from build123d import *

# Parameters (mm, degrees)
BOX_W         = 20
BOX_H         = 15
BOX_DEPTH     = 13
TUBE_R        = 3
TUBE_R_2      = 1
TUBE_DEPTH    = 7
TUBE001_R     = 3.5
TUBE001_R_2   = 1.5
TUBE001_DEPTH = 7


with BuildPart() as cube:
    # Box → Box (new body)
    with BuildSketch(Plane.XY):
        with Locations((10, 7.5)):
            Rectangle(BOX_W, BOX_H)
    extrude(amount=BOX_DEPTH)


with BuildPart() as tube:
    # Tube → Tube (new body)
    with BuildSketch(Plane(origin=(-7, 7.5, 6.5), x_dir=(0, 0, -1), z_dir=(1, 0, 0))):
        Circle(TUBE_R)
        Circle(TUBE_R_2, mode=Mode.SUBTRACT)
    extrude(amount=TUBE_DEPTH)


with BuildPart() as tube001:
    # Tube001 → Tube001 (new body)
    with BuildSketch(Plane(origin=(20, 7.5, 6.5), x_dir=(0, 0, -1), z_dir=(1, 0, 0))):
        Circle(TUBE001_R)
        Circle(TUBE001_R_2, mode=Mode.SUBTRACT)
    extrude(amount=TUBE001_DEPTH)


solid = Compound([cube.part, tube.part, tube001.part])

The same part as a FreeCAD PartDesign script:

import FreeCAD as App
import Part
import Sketcher
from FreeCAD import Vector

doc = App.newDocument("Part")
params = doc.addObject("Spreadsheet::Sheet", "Params")
for row, (alias, value) in enumerate([
    ("sketch1_width", "20 mm"),
    ("sketch1_height", "15 mm"),
    ("pad1_length", "13 mm"),
    ("sketch2_diameter", "6 mm"),
    ("sketch2_diameter2", "2 mm"),
    ("pad2_length", "7 mm"),
    ("sketch3_diameter", "7 mm"),
    ("sketch3_diameter2", "3 mm"),
    ("pad3_length", "7 mm"),
], start=1):
    params.set(f"A{row}", alias)
    params.set(f"B{row}", "=" + value)
    params.setAlias(f"B{row}", alias)

body = doc.addObject("PartDesign::Body", "Body")

# Sketch on XY plane
sketch1 = body.newObject("Sketcher::SketchObject", "Sketch")
sketch1.AttachmentSupport = (doc.getObject("XY_Plane"), [""])
sketch1.MapMode = "FlatFace"
sketch1.addGeometry(Part.LineSegment(Vector(0, 15, 0), Vector(0, 0, 0)), False)
sketch1.addGeometry(Part.LineSegment(Vector(0, 0, 0), Vector(20, 0, 0)), False)
sketch1.addGeometry(Part.LineSegment(Vector(20, 0, 0), Vector(20, 15, 0)), False)
sketch1.addGeometry(Part.LineSegment(Vector(20, 15, 0), Vector(0, 15, 0)), False)
sketch1.addConstraint(Sketcher.Constraint("Coincident", 0, 2, 1, 1))
sketch1.addConstraint(Sketcher.Constraint("Coincident", 1, 2, 2, 1))
sketch1.addConstraint(Sketcher.Constraint("Coincident", 2, 2, 3, 1))
sketch1.addConstraint(Sketcher.Constraint("Coincident", 3, 2, 0, 1))
sketch1.addConstraint(Sketcher.Constraint("Vertical", 0))
sketch1.addConstraint(Sketcher.Constraint("Horizontal", 1))
sketch1.addConstraint(Sketcher.Constraint("Vertical", 2))
sketch1.addConstraint(Sketcher.Constraint("Horizontal", 3))
sketch1.addConstraint(Sketcher.Constraint("Coincident", 0, 2, -1, 1))
sketch1.addConstraint(Sketcher.Constraint("DistanceX", 1, 1, 1, 2, 20.0))
sketch1.addConstraint(Sketcher.Constraint("DistanceY", 0, 2, 0, 1, 15.0))
sketch1.setExpression("Constraints[9]", "Params.sketch1_width")
sketch1.setExpression("Constraints[10]", "Params.sketch1_height")
pad1 = body.newObject("PartDesign::Pad", "Pad")
pad1.Profile = sketch1
pad1.setExpression("Length", "Params.pad1_length")
body2 = doc.addObject("PartDesign::Body", "Body001")

# Sketch on YZ plane
sketch2 = body2.newObject("Sketcher::SketchObject", "Sketch001")
sketch2.AttachmentSupport = (doc.getObject("YZ_Plane001"), [""])
sketch2.MapMode = "FlatFace"
sketch2.AttachmentOffset = App.Placement(Vector(0, 0, -7), App.Rotation())
sketch2.addGeometry(Part.Circle(Vector(7.5, 6.5, 0), Vector(0, 0, 1), 3), False)
sketch2.addGeometry(Part.Circle(Vector(7.5, 6.5, 0), Vector(0, 0, 1), 1), False)
sketch2.addConstraint(Sketcher.Constraint("Coincident", 1, 3, 0, 3))
sketch2.addConstraint(Sketcher.Constraint("Diameter", 0, 6.0))
sketch2.addConstraint(Sketcher.Constraint("Diameter", 1, 2.0))
sketch2.addConstraint(Sketcher.Constraint("DistanceX", -1, 1, 0, 3, 7.5))
sketch2.addConstraint(Sketcher.Constraint("DistanceY", -1, 1, 0, 3, 6.5))
sketch2.setExpression("Constraints[1]", "Params.sketch2_diameter")
sketch2.setExpression("Constraints[2]", "Params.sketch2_diameter2")
pad2 = body2.newObject("PartDesign::Pad", "Pad001")
pad2.Profile = sketch2
pad2.setExpression("Length", "Params.pad2_length")
body3 = doc.addObject("PartDesign::Body", "Body002")

# Sketch on YZ plane
sketch3 = body3.newObject("Sketcher::SketchObject", "Sketch002")
sketch3.AttachmentSupport = (doc.getObject("YZ_Plane002"), [""])
sketch3.MapMode = "FlatFace"
sketch3.AttachmentOffset = App.Placement(Vector(0, 0, 20), App.Rotation())
sketch3.addGeometry(Part.Circle(Vector(7.5, 6.5, 0), Vector(0, 0, 1), 3.5), False)
sketch3.addGeometry(Part.Circle(Vector(7.5, 6.5, 0), Vector(0, 0, 1), 1.5), False)
sketch3.addConstraint(Sketcher.Constraint("Coincident", 1, 3, 0, 3))
sketch3.addConstraint(Sketcher.Constraint("Diameter", 0, 7.0))
sketch3.addConstraint(Sketcher.Constraint("Diameter", 1, 3.0))
sketch3.addConstraint(Sketcher.Constraint("DistanceX", -1, 1, 0, 3, 7.5))
sketch3.addConstraint(Sketcher.Constraint("DistanceY", -1, 1, 0, 3, 6.5))
sketch3.setExpression("Constraints[1]", "Params.sketch3_diameter")
sketch3.setExpression("Constraints[2]", "Params.sketch3_diameter2")
pad3 = body3.newObject("PartDesign::Pad", "Pad002")
pad3.Profile = sketch3
pad3.setExpression("Length", "Params.pad3_length")

doc.recompute()
